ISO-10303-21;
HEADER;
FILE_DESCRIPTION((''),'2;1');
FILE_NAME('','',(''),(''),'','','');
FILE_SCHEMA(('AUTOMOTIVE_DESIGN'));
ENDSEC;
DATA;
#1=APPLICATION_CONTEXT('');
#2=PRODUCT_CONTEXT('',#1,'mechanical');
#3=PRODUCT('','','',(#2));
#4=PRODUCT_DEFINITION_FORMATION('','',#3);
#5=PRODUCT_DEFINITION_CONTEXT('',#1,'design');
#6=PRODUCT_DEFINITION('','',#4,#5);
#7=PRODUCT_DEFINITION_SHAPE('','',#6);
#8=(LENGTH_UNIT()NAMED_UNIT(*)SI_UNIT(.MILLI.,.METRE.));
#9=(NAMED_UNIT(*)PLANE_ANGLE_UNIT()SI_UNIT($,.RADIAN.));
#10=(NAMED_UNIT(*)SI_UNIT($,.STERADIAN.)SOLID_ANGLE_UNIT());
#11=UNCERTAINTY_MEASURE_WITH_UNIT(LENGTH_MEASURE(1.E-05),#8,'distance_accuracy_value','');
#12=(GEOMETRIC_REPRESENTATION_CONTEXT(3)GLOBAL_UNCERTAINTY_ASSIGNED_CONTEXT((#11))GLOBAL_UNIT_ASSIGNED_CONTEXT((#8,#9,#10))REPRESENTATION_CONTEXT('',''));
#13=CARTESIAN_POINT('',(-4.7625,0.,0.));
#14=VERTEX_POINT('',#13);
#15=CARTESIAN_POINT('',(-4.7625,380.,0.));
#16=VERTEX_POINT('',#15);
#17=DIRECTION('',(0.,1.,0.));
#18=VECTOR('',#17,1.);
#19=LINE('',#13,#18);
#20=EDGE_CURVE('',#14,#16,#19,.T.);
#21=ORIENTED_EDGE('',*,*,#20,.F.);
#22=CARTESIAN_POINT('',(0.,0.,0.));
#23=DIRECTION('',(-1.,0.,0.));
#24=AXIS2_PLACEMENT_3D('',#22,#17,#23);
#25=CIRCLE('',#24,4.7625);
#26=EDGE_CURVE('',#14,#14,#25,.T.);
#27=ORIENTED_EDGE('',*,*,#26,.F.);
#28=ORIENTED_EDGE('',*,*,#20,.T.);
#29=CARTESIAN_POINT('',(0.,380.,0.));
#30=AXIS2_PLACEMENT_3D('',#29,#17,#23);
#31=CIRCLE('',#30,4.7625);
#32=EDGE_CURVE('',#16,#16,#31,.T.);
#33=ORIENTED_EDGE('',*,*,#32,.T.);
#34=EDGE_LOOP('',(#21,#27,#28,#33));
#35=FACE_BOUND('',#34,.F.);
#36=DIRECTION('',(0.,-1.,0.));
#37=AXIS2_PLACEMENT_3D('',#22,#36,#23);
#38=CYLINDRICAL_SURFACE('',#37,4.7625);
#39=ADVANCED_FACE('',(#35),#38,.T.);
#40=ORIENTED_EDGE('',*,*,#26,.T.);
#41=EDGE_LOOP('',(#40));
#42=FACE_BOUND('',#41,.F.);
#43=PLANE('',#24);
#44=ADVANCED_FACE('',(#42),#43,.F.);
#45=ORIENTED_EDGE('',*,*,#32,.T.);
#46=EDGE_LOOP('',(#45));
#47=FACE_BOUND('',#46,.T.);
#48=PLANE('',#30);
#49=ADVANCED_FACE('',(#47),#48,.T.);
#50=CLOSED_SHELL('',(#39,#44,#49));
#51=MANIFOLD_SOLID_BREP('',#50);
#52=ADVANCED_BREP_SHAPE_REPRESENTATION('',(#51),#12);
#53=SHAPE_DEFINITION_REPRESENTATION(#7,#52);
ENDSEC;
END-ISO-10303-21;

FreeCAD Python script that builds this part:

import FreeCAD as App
import Part
import Sketcher

V = App.Vector

doc = App.newDocument("Part")
params = doc.addObject("Spreadsheet::Sheet", "Params")
for row, (alias, value) in enumerate([
    ("pad1_length", "380 mm"),
], start=1):
    params.set(f"A{row}", alias)
    params.set(f"B{row}", "=" + value)
    params.setAlias(f"B{row}", alias)

body = doc.addObject("PartDesign::Body", "Body")

# Sketch on XZ plane
sketch1 = body.newObject("Sketcher::SketchObject", "Sketch")
sketch1.AttachmentSupport = (doc.getObject("XZ_Plane"), [""])
sketch1.MapMode = "FlatFace"
sketch1.addGeometry(Part.Circle(V(0, 0, 0), V(0, 0, 1), 4.8), False)
sketch1.addConstraint([
    Sketcher.Constraint("Coincident", 0, 3, -1, 1),
    Sketcher.Constraint("Diameter", 0, 9.525),
])
pad1 = body.newObject("PartDesign::Pad", "Pad")
pad1.Profile = sketch1
pad1.setExpression("Length", "Params.pad1_length")
pad1.Reversed = True

doc.recompute()
